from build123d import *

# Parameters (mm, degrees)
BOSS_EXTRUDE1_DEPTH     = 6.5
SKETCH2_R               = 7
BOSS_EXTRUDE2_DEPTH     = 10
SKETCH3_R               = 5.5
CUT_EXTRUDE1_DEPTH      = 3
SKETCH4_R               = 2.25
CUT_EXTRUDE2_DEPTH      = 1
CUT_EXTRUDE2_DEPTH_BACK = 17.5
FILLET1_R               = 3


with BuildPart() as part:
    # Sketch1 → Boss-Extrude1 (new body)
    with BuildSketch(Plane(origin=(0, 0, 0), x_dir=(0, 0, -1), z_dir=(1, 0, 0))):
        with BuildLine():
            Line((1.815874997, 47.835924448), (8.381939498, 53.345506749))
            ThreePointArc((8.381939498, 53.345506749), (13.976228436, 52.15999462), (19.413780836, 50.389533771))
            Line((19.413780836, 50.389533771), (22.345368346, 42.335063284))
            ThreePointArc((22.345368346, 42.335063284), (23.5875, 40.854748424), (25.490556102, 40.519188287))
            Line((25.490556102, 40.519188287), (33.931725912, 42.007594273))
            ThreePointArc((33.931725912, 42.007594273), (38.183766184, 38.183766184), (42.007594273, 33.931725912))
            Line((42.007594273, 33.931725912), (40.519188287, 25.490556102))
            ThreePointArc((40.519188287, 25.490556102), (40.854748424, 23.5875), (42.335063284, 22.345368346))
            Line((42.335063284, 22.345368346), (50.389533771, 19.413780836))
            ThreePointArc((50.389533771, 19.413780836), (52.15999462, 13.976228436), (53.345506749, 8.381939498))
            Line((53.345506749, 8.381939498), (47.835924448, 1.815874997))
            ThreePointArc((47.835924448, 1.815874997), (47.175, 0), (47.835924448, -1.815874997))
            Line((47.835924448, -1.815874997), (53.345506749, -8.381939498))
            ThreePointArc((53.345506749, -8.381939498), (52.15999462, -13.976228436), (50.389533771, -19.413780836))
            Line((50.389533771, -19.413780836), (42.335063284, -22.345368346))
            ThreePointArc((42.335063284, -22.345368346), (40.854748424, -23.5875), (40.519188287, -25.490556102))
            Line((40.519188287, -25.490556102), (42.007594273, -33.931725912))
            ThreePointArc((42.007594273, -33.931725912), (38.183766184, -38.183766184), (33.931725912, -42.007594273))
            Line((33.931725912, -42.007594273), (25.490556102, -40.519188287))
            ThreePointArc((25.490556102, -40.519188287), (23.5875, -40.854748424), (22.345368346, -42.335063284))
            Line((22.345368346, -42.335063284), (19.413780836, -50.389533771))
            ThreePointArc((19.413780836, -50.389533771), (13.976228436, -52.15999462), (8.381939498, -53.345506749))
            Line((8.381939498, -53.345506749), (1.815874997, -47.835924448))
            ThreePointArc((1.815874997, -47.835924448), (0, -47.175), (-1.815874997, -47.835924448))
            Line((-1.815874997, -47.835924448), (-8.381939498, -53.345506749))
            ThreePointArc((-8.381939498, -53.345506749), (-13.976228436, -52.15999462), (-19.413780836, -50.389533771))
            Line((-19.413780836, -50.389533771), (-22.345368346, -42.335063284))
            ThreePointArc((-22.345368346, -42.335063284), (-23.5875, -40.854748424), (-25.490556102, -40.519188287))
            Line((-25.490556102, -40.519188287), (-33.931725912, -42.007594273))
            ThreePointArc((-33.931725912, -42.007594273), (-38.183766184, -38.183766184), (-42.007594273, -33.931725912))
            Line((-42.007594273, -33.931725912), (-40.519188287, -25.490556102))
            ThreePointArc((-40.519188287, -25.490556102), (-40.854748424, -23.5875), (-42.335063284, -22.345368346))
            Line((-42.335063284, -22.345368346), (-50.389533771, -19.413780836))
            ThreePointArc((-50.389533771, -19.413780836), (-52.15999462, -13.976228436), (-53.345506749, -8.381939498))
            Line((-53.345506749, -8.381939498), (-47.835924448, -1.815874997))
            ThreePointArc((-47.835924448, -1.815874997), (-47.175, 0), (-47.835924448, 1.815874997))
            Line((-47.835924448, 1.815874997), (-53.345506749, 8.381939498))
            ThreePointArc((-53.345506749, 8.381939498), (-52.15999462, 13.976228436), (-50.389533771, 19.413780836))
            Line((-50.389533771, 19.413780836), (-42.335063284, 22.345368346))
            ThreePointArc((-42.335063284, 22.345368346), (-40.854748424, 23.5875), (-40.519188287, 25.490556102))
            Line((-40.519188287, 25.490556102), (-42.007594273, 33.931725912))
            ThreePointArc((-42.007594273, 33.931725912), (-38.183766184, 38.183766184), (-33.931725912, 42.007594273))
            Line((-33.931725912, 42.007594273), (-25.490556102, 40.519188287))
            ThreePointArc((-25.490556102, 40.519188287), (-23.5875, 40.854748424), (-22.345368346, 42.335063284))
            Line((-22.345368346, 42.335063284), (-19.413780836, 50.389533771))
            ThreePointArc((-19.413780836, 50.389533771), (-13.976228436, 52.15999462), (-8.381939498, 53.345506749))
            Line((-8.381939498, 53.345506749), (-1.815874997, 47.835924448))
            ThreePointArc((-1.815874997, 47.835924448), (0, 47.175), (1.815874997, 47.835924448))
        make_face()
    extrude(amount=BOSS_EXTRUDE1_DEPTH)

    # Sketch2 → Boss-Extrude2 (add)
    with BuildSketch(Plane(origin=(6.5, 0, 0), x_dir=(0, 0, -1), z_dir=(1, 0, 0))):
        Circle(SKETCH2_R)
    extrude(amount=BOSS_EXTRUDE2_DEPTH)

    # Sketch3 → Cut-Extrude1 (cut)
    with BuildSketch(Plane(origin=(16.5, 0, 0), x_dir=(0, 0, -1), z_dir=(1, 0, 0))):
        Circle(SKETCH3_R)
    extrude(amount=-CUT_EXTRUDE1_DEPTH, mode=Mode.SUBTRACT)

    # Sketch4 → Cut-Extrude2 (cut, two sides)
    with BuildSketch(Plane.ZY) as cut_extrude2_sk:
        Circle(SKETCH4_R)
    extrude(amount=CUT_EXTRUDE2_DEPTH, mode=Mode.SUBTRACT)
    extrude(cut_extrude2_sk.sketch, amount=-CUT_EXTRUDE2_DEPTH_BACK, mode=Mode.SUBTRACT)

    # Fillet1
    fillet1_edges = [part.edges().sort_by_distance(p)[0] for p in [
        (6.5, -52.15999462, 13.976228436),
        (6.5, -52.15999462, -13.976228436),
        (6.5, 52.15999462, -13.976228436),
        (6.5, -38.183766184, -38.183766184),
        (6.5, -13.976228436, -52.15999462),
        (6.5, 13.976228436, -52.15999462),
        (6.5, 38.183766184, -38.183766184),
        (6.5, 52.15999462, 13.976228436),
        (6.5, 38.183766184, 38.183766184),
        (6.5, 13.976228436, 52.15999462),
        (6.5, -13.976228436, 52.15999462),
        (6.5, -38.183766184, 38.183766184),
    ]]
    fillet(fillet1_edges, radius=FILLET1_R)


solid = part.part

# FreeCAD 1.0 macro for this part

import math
import FreeCAD as App
import Part
import Sketcher
Q = App.Units.Quantity


def edges_at(feature, points):
    """Names of the edges that pass closest to the given points."""
    edges = feature.Shape.Edges
    near = lambda p: min(range(len(edges)), key=lambda i: edges[i].distToShape(Part.Vertex(*p))[0])
    return sorted({f"Edge{near(p) + 1}" for p in points})

doc = App.newDocument("Part")
body = doc.addObject("PartDesign::Body", "Body")

# Sketch on YZ plane
sketch1 = body.newObject("Sketcher::SketchObject", "Sketch")
sketch1.AttachmentSupport = (doc.getObject("YZ_Plane"), [""])
sketch1.MapMode = "FlatFace"
sketch1.addGeometry([
    Part.LineSegment(App.Vector(53.3, -8.4, 0), App.Vector(47.8, -1.8, 0)),  # 0
    Part.ArcOfCircle(Part.Circle(App.Vector(50, 0, 0), App.Vector(0, 0, 1), 2.8), math.radians(140), math.radians(220)),  # 1
    Part.LineSegment(App.Vector(47.8, 1.8, 0), App.Vector(53.3, 8.4, 0)),  # 2
    Part.ArcOfCircle(Part.Circle(App.Vector(0, 0, 0), App.Vector(0, 0, 1), 54), math.radians(8.93), math.radians(21.07)),  # 3
    Part.LineSegment(App.Vector(50.4, 19.4, 0), App.Vector(42.3, 22.3, 0)),  # 4
    Part.ArcOfCircle(Part.Circle(App.Vector(43.3, 25, 0), App.Vector(0, 0, 1), 2.8), math.radians(170), math.radians(250)),  # 5
    Part.LineSegment(App.Vector(40.5, 25.5, 0), App.Vector(42, 33.9, 0)),  # 6
    Part.ArcOfCircle(Part.Circle(App.Vector(0, 0, 0), App.Vector(0, 0, 1), 54), math.radians(38.93), math.radians(51.07)),  # 7
    Part.LineSegment(App.Vector(33.9, 42, 0), App.Vector(25.5, 40.5, 0)),  # 8
    Part.ArcOfCircle(Part.Circle(App.Vector(25, 43.3, 0), App.Vector(0, 0, 1), 2.8), math.radians(-160), math.radians(-80)),  # 9
    Part.LineSegment(App.Vector(22.3, 42.3, 0), App.Vector(19.4, 50.4, 0)),  # 10
    Part.ArcOfCircle(Part.Circle(App.Vector(0, 0, 0), App.Vector(0, 0, 1), 54), math.radians(68.93), math.radians(81.07)),  # 11
    Part.LineSegment(App.Vector(8.4, 53.3, 0), App.Vector(1.8, 47.8, 0)),  # 12
    Part.ArcOfCircle(Part.Circle(App.Vector(0, 50, 0), App.Vector(0, 0, 1), 2.8), math.radians(-130), math.radians(-50)),  # 13
    Part.LineSegment(App.Vector(-1.8, 47.8, 0), App.Vector(-8.4, 53.3, 0)),  # 14
    Part.ArcOfCircle(Part.Circle(App.Vector(0, 0, 0), App.Vector(0, 0, 1), 54), math.radians(98.93), math.radians(111.07)),  # 15
    Part.LineSegment(App.Vector(-19.4, 50.4, 0), App.Vector(-22.3, 42.3, 0)),  # 16
    Part.ArcOfCircle(Part.Circle(App.Vector(-25, 43.3, 0), App.Vector(0, 0, 1), 2.8), math.radians(-100), math.radians(-20)),  # 17
    Part.LineSegment(App.Vector(-25.5, 40.5, 0), App.Vector(-33.9, 42, 0)),  # 18
    Part.ArcOfCircle(Part.Circle(App.Vector(0, 0, 0), App.Vector(0, 0, 1), 54), math.radians(128.93), math.radians(141.07)),  # 19
    Part.LineSegment(App.Vector(-42, 33.9, 0), App.Vector(-40.5, 25.5, 0)),  # 20
    Part.ArcOfCircle(Part.Circle(App.Vector(-43.3, 25, 0), App.Vector(0, 0, 1), 2.8), math.radians(-70), math.radians(10)),  # 21
    Part.LineSegment(App.Vector(-42.3, 22.3, 0), App.Vector(-50.4, 19.4, 0)),  # 22
    Part.ArcOfCircle(Part.Circle(App.Vector(0, 0, 0), App.Vector(0, 0, 1), 54), math.radians(158.93), math.radians(171.07)),  # 23
    Part.LineSegment(App.Vector(-53.3, 8.4, 0), App.Vector(-47.8, 1.8, 0)),  # 24
    Part.ArcOfCircle(Part.Circle(App.Vector(-50, 0, 0), App.Vector(0, 0, 1), 2.8), math.radians(-40), math.radians(40)),  # 25
    Part.LineSegment(App.Vector(-47.8, -1.8, 0), App.Vector(-53.3, -8.4, 0)),  # 26
    Part.ArcOfCircle(Part.Circle(App.Vector(0, 0, 0), App.Vector(0, 0, 1), 54), math.radians(-171.07), math.radians(-158.93)),  # 27
    Part.LineSegment(App.Vector(-50.4, -19.4, 0), App.Vector(-42.3, -22.3, 0)),  # 28
    Part.ArcOfCircle(Part.Circle(App.Vector(-43.3, -25, 0), App.Vector(0, 0, 1), 2.8), math.radians(-10), math.radians(70)),  # 29
    Part.LineSegment(App.Vector(-40.5, -25.5, 0), App.Vector(-42, -33.9, 0)),  # 30
    Part.ArcOfCircle(Part.Circle(App.Vector(0, 0, 0), App.Vector(0, 0, 1), 54), math.radians(-141.07), math.radians(-128.93)),  # 31
    Part.LineSegment(App.Vector(-33.9, -42, 0), App.Vector(-25.5, -40.5, 0)),  # 32
    Part.ArcOfCircle(Part.Circle(App.Vector(-25, -43.3, 0), App.Vector(0, 0, 1), 2.8), math.radians(20), math.radians(100)),  # 33
    Part.LineSegment(App.Vector(-22.3, -42.3, 0), App.Vector(-19.4, -50.4, 0)),  # 34
    Part.ArcOfCircle(Part.Circle(App.Vector(0, 0, 0), App.Vector(0, 0, 1), 54), math.radians(-111.07), math.radians(-98.93)),  # 35
    Part.LineSegment(App.Vector(-8.4, -53.3, 0), App.Vector(-1.8, -47.8, 0)),  # 36
    Part.ArcOfCircle(Part.Circle(App.Vector(0, -50, 0), App.Vector(0, 0, 1), 2.8), math.radians(50), math.radians(130)),  # 37
    Part.LineSegment(App.Vector(1.8, -47.8, 0), App.Vector(8.4, -53.3, 0)),  # 38
    Part.ArcOfCircle(Part.Circle(App.Vector(0, 0, 0), App.Vector(0, 0, 1), 54), math.radians(-81.07), math.radians(-68.93)),  # 39
    Part.LineSegment(App.Vector(19.4, -50.4, 0), App.Vector(22.3, -42.3, 0)),  # 40
    Part.ArcOfCircle(Part.Circle(App.Vector(25, -43.3, 0), App.Vector(0, 0, 1), 2.8), math.radians(80), math.radians(160)),  # 41
    Part.LineSegment(App.Vector(25.5, -40.5, 0), App.Vector(33.9, -42, 0)),  # 42
    Part.ArcOfCircle(Part.Circle(App.Vector(0, 0, 0), App.Vector(0, 0, 1), 54), math.radians(-51.07), math.radians(-38.93)),  # 43
    Part.LineSegment(App.Vector(42, -33.9, 0), App.Vector(40.5, -25.5, 0)),  # 44
    Part.ArcOfCircle(Part.Circle(App.Vector(43.3, -25, 0), App.Vector(0, 0, 1), 2.8), math.radians(110), math.radians(190)),  # 45
    Part.LineSegment(App.Vector(42.3, -22.3, 0), App.Vector(50.4, -19.4, 0)),  # 46
    Part.ArcOfCircle(Part.Circle(App.Vector(0, 0, 0), App.Vector(0, 0, 1), 54), math.radians(-21.07), math.radians(-8.93)),  # 47
], False)
sketch1.addConstraint([
    Sketcher.Constraint("Tangent", 0, 2, 1, 2),
    Sketcher.Constraint("Tangent", 1, 1, 2, 1),
    Sketcher.Constraint("Coincident", 2, 2, 3, 1),
    Sketcher.Constraint("Coincident", 3, 2, 4, 1),
    Sketcher.Constraint("Tangent", 4, 2, 5, 2),
    Sketcher.Constraint("Tangent", 5, 1, 6, 1),
    Sketcher.Constraint("Coincident", 6, 2, 7, 1),
    Sketcher.Constraint("Coincident", 7, 2, 8, 1),
    Sketcher.Constraint("Tangent", 8, 2, 9, 2),
    Sketcher.Constraint("Tangent", 9, 1, 10, 1),
    Sketcher.Constraint("Coincident", 10, 2, 11, 1),
    Sketcher.Constraint("Coincident", 11, 2, 12, 1),
    Sketcher.Constraint("Tangent", 12, 2, 13, 2),
    Sketcher.Constraint("Tangent", 13, 1, 14, 1),
    Sketcher.Constraint("Coincident", 14, 2, 15, 1),
    Sketcher.Constraint("Coincident", 15, 2, 16, 1),
    Sketcher.Constraint("Tangent", 16, 2, 17, 2),
    Sketcher.Constraint("Tangent", 17, 1, 18, 1),
    Sketcher.Constraint("Coincident", 18, 2, 19, 1),
    Sketcher.Constraint("Coincident", 19, 2, 20, 1),
    Sketcher.Constraint("Tangent", 20, 2, 21, 2),
    Sketcher.Constraint("Tangent", 21, 1, 22, 1),
    Sketcher.Constraint("Coincident", 22, 2, 23, 1),
    Sketcher.Constraint("Coincident", 23, 2, 24, 1),
    Sketcher.Constraint("Tangent", 24, 2, 25, 2),
    Sketcher.Constraint("Tangent", 25, 1, 26, 1),
    Sketcher.Constraint("Coincident", 26, 2, 27, 1),
    Sketcher.Constraint("Coincident", 27, 2, 28, 1),
    Sketcher.Constraint("Tangent", 28, 2, 29, 2),
    Sketcher.Constraint("Tangent", 29, 1, 30, 1),
    Sketcher.Constraint("Coincident", 30, 2, 31, 1),
    Sketcher.Constraint("Coincident", 31, 2, 32, 1),
    Sketcher.Constraint("Tangent", 32, 2, 33, 2),
    Sketcher.Constraint("Tangent", 33, 1, 34, 1),
    Sketcher.Constraint("Coincident", 34, 2, 35, 1),
    Sketcher.Constraint("Coincident", 35, 2, 36, 1),
    Sketcher.Constraint("Tangent", 36, 2, 37, 2),
    Sketcher.Constraint("Tangent", 37, 1, 38, 1),
    Sketcher.Constraint("Coincident", 38, 2, 39, 1),
    Sketcher.Constraint("Coincident", 39, 2, 40, 1),
    Sketcher.Constraint("Tangent", 40, 2, 41, 2),
    Sketcher.Constraint("Tangent", 41, 1, 42, 1),
    Sketcher.Constraint("Coincident", 42, 2, 43, 1),
    Sketcher.Constraint("Coincident", 43, 2, 44, 1),
    Sketcher.Constraint("Tangent", 44, 2, 45, 2),
    Sketcher.Constraint("Tangent", 45, 1, 46, 1),
    Sketcher.Constraint("Coincident", 46, 2, 47, 1),
    Sketcher.Constraint("Coincident", 47, 2, 0, 1),
    Sketcher.Constraint("Coincident", 3, 3, -1, 1),
    Sketcher.Constraint("Coincident", 7, 3, -1, 1),
    Sketcher.Constraint("Coincident", 11, 3, -1, 1),
    Sketcher.Constraint("Coincident", 15, 3, -1, 1),
    Sketcher.Constraint("Coincident", 19, 3, -1, 1),
    Sketcher.Constraint("Coincident", 23, 3, -1, 1),
    Sketcher.Constraint("Coincident", 27, 3, -1, 1),
    Sketcher.Constraint("Coincident", 31, 3, -1, 1),
    Sketcher.Constraint("Coincident", 35, 3, -1, 1),
    Sketcher.Constraint("Coincident", 39, 3, -1, 1),
    Sketcher.Constraint("Coincident", 43, 3, -1, 1),
    Sketcher.Constraint("Coincident", 47, 3, -1, 1),
    Sketcher.Constraint("Equal", 1, 5),
    Sketcher.Constraint("Equal", 3, 7),
    Sketcher.Constraint("Equal", 5, 9),
    Sketcher.Constraint("Equal", 7, 11),
    Sketcher.Constraint("Equal", 9, 13),
    Sketcher.Constraint("Equal", 11, 15),
    Sketcher.Constraint("Equal", 13, 17),
    Sketcher.Constraint("Equal", 15, 19),
    Sketcher.Constraint("Equal", 17, 21),
    Sketcher.Constraint("Equal", 19, 23),
    Sketcher.Constraint("Equal", 21, 25),
    Sketcher.Constraint("Equal", 23, 27),
    Sketcher.Constraint("Equal", 25, 29),
    Sketcher.Constraint("Equal", 27, 31),
    Sketcher.Constraint("Equal", 29, 33),
    Sketcher.Constraint("Equal", 31, 35),
    Sketcher.Constraint("Equal", 33, 37),
    Sketcher.Constraint("Equal", 35, 39),
    Sketcher.Constraint("Equal", 37, 41),
    Sketcher.Constraint("Equal", 39, 43),
    Sketcher.Constraint("Equal", 41, 45),
    Sketcher.Constraint("Equal", 43, 47),
    Sketcher.Constraint("Symmetric", 1, 3, 25, 3, -1, 1),
    Sketcher.Constraint("Symmetric", 5, 3, 29, 3, -1, 1),
    Sketcher.Constraint("Symmetric", 9, 3, 33, 3, -1, 1),
    Sketcher.Constraint("Symmetric", 13, 3, 37, 3, -1, 1),
    Sketcher.Constraint("Symmetric", 17, 3, 41, 3, -1, 1),
    Sketcher.Constraint("Symmetric", 21, 3, 45, 3, -1, 1),
    Sketcher.Constraint("Symmetric", 9, 3, 17, 3, -2),
    Sketcher.Constraint("Symmetric", 5, 3, 21, 3, -2),
    Sketcher.Constraint("Symmetric", 12, 2, 13, 1, -2),
    Sketcher.Constraint("Symmetric", 1, 1, 24, 2, -2),
    Sketcher.Constraint("Perpendicular", 0, 12),
    Sketcher.Constraint("Perpendicular", 2, 14),
    Sketcher.Constraint("Perpendicular", 4, 16),
    Sketcher.Constraint("Perpendicular", 6, 18),
    Sketcher.Constraint("Perpendicular", 8, 20),
    Sketcher.Constraint("Perpendicular", 10, 22),
    Sketcher.Constraint("Perpendicular", 14, 26),
    Sketcher.Constraint("Perpendicular", 16, 28),
    Sketcher.Constraint("Perpendicular", 18, 30),
    Sketcher.Constraint("Perpendicular", 20, 32),
    Sketcher.Constraint("Perpendicular", 22, 34),
    Sketcher.Constraint("Perpendicular", 24, 36),
    Sketcher.Constraint("Perpendicular", 26, 38),
    Sketcher.Constraint("Perpendicular", 28, 40),
    Sketcher.Constraint("Perpendicular", 30, 42),
    Sketcher.Constraint("Perpendicular", 32, 44),
    Sketcher.Constraint("Perpendicular", 34, 46),
    Sketcher.Constraint("Horizontal", 10, 2, 15, 2),
    Sketcher.Constraint("Horizontal", 8, 2, 17, 1),
    Sketcher.Constraint("Equal", 2, 4),
    Sketcher.Constraint("Equal", 4, 6),
    Sketcher.Constraint("Equal", 6, 8),
    Sketcher.Constraint("Equal", 8, 10),
    Sketcher.Constraint("Equal", 10, 12),
    Sketcher.Constraint("Radius", 3, 54.0),
    Sketcher.Constraint("Angle", 0, Q("130 deg")),
    Sketcher.Constraint("Angle", 4, Q("160 deg")),
    Sketcher.Constraint("Angle", 6, Q("80 deg")),
    Sketcher.Constraint("DistanceX", -1, 1, 1, 3, 50.0),
    Sketcher.Constraint("Radius", 1, 2.825),
])
pad1 = body.newObject("PartDesign::Pad", "Pad")
pad1.Profile = sketch1
pad1.Length = 6.5

# Sketch on YZ plane
sketch2 = body.newObject("Sketcher::SketchObject", "Sketch001")
sketch2.AttachmentSupport = (doc.getObject("YZ_Plane"), [""])
sketch2.MapMode = "FlatFace"
sketch2.AttachmentOffset = App.Placement(App.Vector(0, 0, 6.5), App.Rotation())
sketch2.addGeometry(Part.Circle(App.Vector(0, 0, 0), App.Vector(0, 0, 1), 7), False)
sketch2.addConstraint([
    Sketcher.Constraint("Coincident", 0, 3, -1, 1),
    Sketcher.Constraint("Diameter", 0, 14.0),
])
pad2 = body.newObject("PartDesign::Pad", "Pad001")
pad2.Profile = sketch2
pad2.Length = 10

# Sketch on YZ plane
sketch3 = body.newObject("Sketcher::SketchObject", "Sketch002")
sketch3.AttachmentSupport = (doc.getObject("YZ_Plane"), [""])
sketch3.MapMode = "FlatFace"
sketch3.AttachmentOffset = App.Placement(App.Vector(0, 0, 16.5), App.Rotation())
sketch3.addGeometry(Part.Circle(App.Vector(0, 0, 0), App.Vector(0, 0, 1), 6), False)
sketch3.addConstraint([
    Sketcher.Constraint("Coincident", 0, 3, -1, 1),
    Sketcher.Constraint("Diameter", 0, 11.0),
])
pocket1 = body.newObject("PartDesign::Pocket", "Pocket")
pocket1.Profile = sketch3
pocket1.Length = 3

# Sketch on YZ plane
sketch4 = body.newObject("Sketcher::SketchObject", "Sketch003")
sketch4.AttachmentSupport = (doc.getObject("YZ_Plane"), [""])
sketch4.MapMode = "FlatFace"
sketch4.addGeometry(Part.Circle(App.Vector(0, 0, 0), App.Vector(0, 0, 1), 2.2), False)
sketch4.addConstraint([
    Sketcher.Constraint("Coincident", 0, 3, -1, 1),
    Sketcher.Constraint("Diameter", 0, 4.5),
])
pocket2 = body.newObject("PartDesign::Pocket", "Pocket001")
pocket2.Profile = sketch4
pocket2.Type = "ThroughAll"
pocket2.Midplane = True
doc.recompute()

fillet = body.newObject("PartDesign::Fillet", "Fillet")
fillet.Base = (pocket2, edges_at(pocket2, [
    (6.5, -52.16, 13.976),
    (6.5, -52.16, -13.976),
    (6.5, 52.16, -13.976),
    (6.5, -38.184, -38.184),
    (6.5, -13.976, -52.16),
    (6.5, 13.976, -52.16),
    (6.5, 38.184, -38.184),
    (6.5, 52.16, 13.976),
    (6.5, 38.184, 38.184),
    (6.5, 13.976, 52.16),
    (6.5, -13.976, 52.16),
    (6.5, -38.184, 38.184),
]))
fillet.Radius = 3

doc.recompute()
